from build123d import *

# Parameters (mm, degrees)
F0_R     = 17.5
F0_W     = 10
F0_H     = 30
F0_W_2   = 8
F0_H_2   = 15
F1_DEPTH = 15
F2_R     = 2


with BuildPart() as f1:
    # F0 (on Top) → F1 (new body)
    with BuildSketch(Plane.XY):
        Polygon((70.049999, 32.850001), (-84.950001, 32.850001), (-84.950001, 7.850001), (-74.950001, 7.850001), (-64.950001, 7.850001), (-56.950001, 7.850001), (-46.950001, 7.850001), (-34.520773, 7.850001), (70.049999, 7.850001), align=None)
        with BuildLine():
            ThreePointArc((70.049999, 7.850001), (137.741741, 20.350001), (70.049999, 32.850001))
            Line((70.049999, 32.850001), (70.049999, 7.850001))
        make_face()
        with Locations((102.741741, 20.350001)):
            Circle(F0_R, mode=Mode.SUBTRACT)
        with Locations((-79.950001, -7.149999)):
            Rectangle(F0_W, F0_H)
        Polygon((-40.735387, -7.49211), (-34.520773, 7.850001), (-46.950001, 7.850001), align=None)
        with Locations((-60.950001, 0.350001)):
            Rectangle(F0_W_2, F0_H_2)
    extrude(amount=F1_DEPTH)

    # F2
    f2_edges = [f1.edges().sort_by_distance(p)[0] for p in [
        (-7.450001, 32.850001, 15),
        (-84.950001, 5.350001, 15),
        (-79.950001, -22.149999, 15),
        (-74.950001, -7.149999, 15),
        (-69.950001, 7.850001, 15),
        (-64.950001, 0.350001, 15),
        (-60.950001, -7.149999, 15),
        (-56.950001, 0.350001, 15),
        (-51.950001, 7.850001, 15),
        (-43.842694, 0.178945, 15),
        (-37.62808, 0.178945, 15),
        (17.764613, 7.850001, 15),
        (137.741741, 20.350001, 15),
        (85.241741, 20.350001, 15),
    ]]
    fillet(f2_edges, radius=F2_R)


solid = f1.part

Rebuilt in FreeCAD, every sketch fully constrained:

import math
import FreeCAD as App
import Part
import Sketcher
Q = App.Units.Quantity


def edges_at(feature, points):
    """Names of the edges that pass closest to the given points."""
    edges = feature.Shape.Edges
    near = lambda p: min(range(len(edges)), key=lambda i: edges[i].distToShape(Part.Vertex(*p))[0])
    return sorted({f"Edge{near(p) + 1}" for p in points})

doc = App.newDocument("Part")
body = doc.addObject("PartDesign::Body", "Body")

# Sketch on XY plane
sketch1 = body.newObject("Sketcher::SketchObject", "Sketch")
sketch1.AttachmentSupport = (doc.getObject("XY_Plane"), [""])
sketch1.MapMode = "FlatFace"
sketch1.addGeometry([
    Part.LineSegment(App.Vector(70, 33, 0), App.Vector(-85, 33, 0)),  # 0
    Part.LineSegment(App.Vector(-85, 33, 0), App.Vector(-85, -22, 0)),  # 1
    Part.LineSegment(App.Vector(-85, -22, 0), App.Vector(-75, -22, 0)),  # 2
    Part.LineSegment(App.Vector(-75, -22, 0), App.Vector(-75, 8, 0)),  # 3
    Part.LineSegment(App.Vector(-75, 8, 0), App.Vector(-65, 8, 0)),  # 4
    Part.LineSegment(App.Vector(-65, 8, 0), App.Vector(-65, -7, 0)),  # 5
    Part.LineSegment(App.Vector(-65, -7, 0), App.Vector(-57, -7, 0)),  # 6
    Part.LineSegment(App.Vector(-57, -7, 0), App.Vector(-57, 8, 0)),  # 7
    Part.LineSegment(App.Vector(-57, 8, 0), App.Vector(-47, 8, 0)),  # 8
    Part.LineSegment(App.Vector(-47, 8, 0), App.Vector(-41, -7, 0)),  # 9
    Part.LineSegment(App.Vector(-41, -7, 0), App.Vector(-35, 8, 0)),  # 10
    Part.LineSegment(App.Vector(-35, 8, 0), App.Vector(70, 8, 0)),  # 11
    Part.ArcOfCircle(Part.Circle(App.Vector(103, 20, 0), App.Vector(0, 0, 1), 35), math.radians(-159), math.radians(159)),  # 12
    Part.Circle(App.Vector(103, 20, 0), App.Vector(0, 0, 1), 18),  # 13
], False)
sketch1.addConstraint([
    Sketcher.Constraint("Coincident", 0, 2, 1, 1),
    Sketcher.Constraint("Coincident", 1, 2, 2, 1),
    Sketcher.Constraint("Coincident", 2, 2, 3, 1),
    Sketcher.Constraint("Coincident", 3, 2, 4, 1),
    Sketcher.Constraint("Coincident", 4, 2, 5, 1),
    Sketcher.Constraint("Coincident", 5, 2, 6, 1),
    Sketcher.Constraint("Coincident", 6, 2, 7, 1),
    Sketcher.Constraint("Coincident", 7, 2, 8, 1),
    Sketcher.Constraint("Coincident", 8, 2, 9, 1),
    Sketcher.Constraint("Coincident", 9, 2, 10, 1),
    Sketcher.Constraint("Coincident", 10, 2, 11, 1),
    Sketcher.Constraint("Coincident", 11, 2, 12, 1),
    Sketcher.Constraint("Coincident", 12, 2, 0, 1),
    Sketcher.Constraint("Horizontal", 0),
    Sketcher.Constraint("Vertical", 1),
    Sketcher.Constraint("Horizontal", 2),
    Sketcher.Constraint("Vertical", 3),
    Sketcher.Constraint("Horizontal", 4),
    Sketcher.Constraint("Vertical", 5),
    Sketcher.Constraint("Horizontal", 6),
    Sketcher.Constraint("Vertical", 7),
    Sketcher.Constraint("Horizontal", 8),
    Sketcher.Constraint("Horizontal", 11),
    Sketcher.Constraint("Coincident", 13, 3, 12, 3),
    Sketcher.Constraint("Horizontal", 4, 2, 7, 2),
    Sketcher.Constraint("Horizontal", 8, 2, 10, 2),
    Sketcher.Constraint("Vertical", 11, 2, 12, 2),
    Sketcher.Constraint("Equal", 2, 4),
    Sketcher.Constraint("Equal", 4, 8),
    Sketcher.Constraint("Equal", 9, 10),
    Sketcher.Constraint("Diameter", 13, Q("35 mm")),
    Sketcher.Constraint("Radius", 12, Q("35 mm")),
    Sketcher.Constraint("DistanceX", 0, 2, 0, 1, Q("155 mm")),
    Sketcher.Constraint("DistanceX", 2, 1, 2, 2, Q("10 mm")),
    Sketcher.Constraint("DistanceX", 6, 1, 6, 2, Q("8 mm")),
    Sketcher.Constraint("DistanceY", 1, 2, 1, 1, Q("55 mm")),
    Sketcher.Constraint("DistanceY", 3, 1, 3, 2, Q("30 mm")),
    Sketcher.Constraint("DistanceY", 5, 2, 5, 1, Q("15 mm")),
    Sketcher.Constraint("DistanceY", -1, 1, 12, 3, Q("20.350001 mm")),
    Sketcher.Constraint("DistanceX", 0, 2, -1, 1, Q("84.950001 mm")),
    Sketcher.Constraint("Distance", 9, Q("16.553 mm")),
    Sketcher.Constraint("DistanceX", 11, 1, 11, 2, Q("104.570772 mm")),
])
pad1 = body.newObject("PartDesign::Pad", "Pad")
pad1.Profile = sketch1
pad1.Length = 15
doc.recompute()

fillet = body.newObject("PartDesign::Fillet", "Fillet")
fillet.Base = (pad1, edges_at(pad1, [
    (-7.45, 32.85, 15),
    (-84.95, 5.35, 15),
    (-79.95, -22.15, 15),
    (-74.95, -7.15, 15),
    (-69.95, 7.85, 15),
    (-64.95, 0.35, 15),
    (-60.95, -7.15, 15),
    (-56.95, 0.35, 15),
    (-51.95, 7.85, 15),
    (-43.843, 0.179, 15),
    (-37.628, 0.179, 15),
    (17.765, 7.85, 15),
    (137.742, 20.35, 15),
    (85.242, 20.35, 15),
]))
fillet.Radius = 2

doc.recompute()
